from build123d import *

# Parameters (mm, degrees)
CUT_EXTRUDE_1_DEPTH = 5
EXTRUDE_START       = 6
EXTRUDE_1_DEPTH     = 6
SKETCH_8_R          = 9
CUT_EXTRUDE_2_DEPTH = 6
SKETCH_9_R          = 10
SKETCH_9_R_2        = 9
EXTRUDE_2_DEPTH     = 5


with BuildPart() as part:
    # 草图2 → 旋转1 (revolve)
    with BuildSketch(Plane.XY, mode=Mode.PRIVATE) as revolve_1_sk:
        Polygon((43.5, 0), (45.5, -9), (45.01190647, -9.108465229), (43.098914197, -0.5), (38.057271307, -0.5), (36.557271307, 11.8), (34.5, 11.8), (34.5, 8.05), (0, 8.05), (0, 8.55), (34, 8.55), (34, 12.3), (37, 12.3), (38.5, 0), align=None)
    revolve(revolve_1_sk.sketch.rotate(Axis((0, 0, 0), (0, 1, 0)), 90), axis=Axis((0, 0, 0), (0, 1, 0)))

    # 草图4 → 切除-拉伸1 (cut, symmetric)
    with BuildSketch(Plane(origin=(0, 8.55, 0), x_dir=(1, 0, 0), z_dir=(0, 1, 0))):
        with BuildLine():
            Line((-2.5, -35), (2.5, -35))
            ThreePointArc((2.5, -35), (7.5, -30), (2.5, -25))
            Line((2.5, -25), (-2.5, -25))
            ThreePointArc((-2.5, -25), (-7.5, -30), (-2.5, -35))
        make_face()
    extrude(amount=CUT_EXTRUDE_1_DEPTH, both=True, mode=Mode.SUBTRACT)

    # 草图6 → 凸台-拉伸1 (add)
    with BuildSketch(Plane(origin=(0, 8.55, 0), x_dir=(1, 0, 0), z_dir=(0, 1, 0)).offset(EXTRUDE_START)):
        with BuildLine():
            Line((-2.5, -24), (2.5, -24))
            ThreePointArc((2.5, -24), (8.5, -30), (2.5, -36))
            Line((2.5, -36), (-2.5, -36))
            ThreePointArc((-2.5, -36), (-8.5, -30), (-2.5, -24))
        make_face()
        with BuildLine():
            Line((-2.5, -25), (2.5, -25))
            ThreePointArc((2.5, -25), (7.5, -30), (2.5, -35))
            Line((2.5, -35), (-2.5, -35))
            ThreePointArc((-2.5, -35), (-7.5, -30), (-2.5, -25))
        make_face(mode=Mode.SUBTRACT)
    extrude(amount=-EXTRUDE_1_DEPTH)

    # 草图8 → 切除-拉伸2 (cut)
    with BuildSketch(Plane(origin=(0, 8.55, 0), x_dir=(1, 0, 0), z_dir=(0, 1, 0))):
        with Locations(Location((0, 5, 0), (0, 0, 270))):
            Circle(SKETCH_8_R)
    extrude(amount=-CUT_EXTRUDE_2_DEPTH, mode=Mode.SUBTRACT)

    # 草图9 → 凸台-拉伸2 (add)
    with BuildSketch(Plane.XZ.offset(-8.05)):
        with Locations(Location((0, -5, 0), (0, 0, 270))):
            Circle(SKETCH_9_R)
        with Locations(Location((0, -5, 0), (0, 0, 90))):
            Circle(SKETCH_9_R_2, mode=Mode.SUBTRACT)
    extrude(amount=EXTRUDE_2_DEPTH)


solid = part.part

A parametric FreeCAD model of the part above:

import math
import FreeCAD as App
import Part
import Sketcher

V = App.Vector

doc = App.newDocument("Part")
body = doc.addObject("PartDesign::Body", "Body")

sketch1 = body.newObject("Sketcher::SketchObject", "Sketch")
sketch1.AttachmentSupport = (doc.getObject("XY_Plane"), [""])
sketch1.MapMode = "FlatFace"
sketch1.addGeometry([
    Part.LineSegment(V(45.5, -9, 0), V(43.5, 0, 0)),
    Part.LineSegment(V(43.5, 0, 0), V(38.5, 0, 0)),
    Part.LineSegment(V(38.5, 0, 0), V(37, 12.3, 0)),
    Part.LineSegment(V(37, 12.3, 0), V(34, 12.3, 0)),
    Part.LineSegment(V(34, 12.3, 0), V(34, 8.55, 0)),
    Part.LineSegment(V(34, 8.55, 0), V(0, 8.55, 0)),
    Part.LineSegment(V(0, 8.55, 0), V(0, 8.05, 0)),
    Part.LineSegment(V(0, 8.05, 0), V(34.5, 8.05, 0)),
    Part.LineSegment(V(34.5, 8.05, 0), V(34.5, 11.8, 0)),
    Part.LineSegment(V(34.5, 11.8, 0), V(36.56, 11.8, 0)),
    Part.LineSegment(V(36.56, 11.8, 0), V(38.06, -0.5, 0)),
    Part.LineSegment(V(38.06, -0.5, 0), V(43.1, -0.5, 0)),
    Part.LineSegment(V(43.1, -0.5, 0), V(45.01, -9.11, 0)),
    Part.LineSegment(V(45.01, -9.11, 0), V(45.5, -9, 0)),
], False)
sketch1.addConstraint([
    Sketcher.Constraint("Coincident", 0, 2, 1, 1),
    Sketcher.Constraint("Coincident", 1, 2, 2, 1),
    Sketcher.Constraint("Coincident", 2, 2, 3, 1),
    Sketcher.Constraint("Coincident", 3, 2, 4, 1),
    Sketcher.Constraint("Coincident", 4, 2, 5, 1),
    Sketcher.Constraint("Coincident", 5, 2, 6, 1),
    Sketcher.Constraint("Coincident", 6, 2, 7, 1),
    Sketcher.Constraint("Coincident", 7, 2, 8, 1),
    Sketcher.Constraint("Coincident", 8, 2, 9, 1),
    Sketcher.Constraint("Coincident", 9, 2, 10, 1),
    Sketcher.Constraint("Coincident", 10, 2, 11, 1),
    Sketcher.Constraint("Coincident", 11, 2, 12, 1),
    Sketcher.Constraint("Coincident", 12, 2, 13, 1),
    Sketcher.Constraint("Coincident", 13, 2, 0, 1),
    Sketcher.Constraint("Horizontal", 1),
    Sketcher.Constraint("Horizontal", 3),
    Sketcher.Constraint("Vertical", 4),
    Sketcher.Constraint("Horizontal", 5),
    Sketcher.Constraint("Vertical", 6),
    Sketcher.Constraint("Horizontal", 7),
    Sketcher.Constraint("Vertical", 8),
    Sketcher.Constraint("Horizontal", 9),
    Sketcher.Constraint("Horizontal", 11),
    Sketcher.Constraint("PointOnObject", 0, 2, -1),
    Sketcher.Constraint("PointOnObject", 5, 2, -2),
    Sketcher.Constraint("Parallel", 2, 10),
    Sketcher.Constraint("Parallel", 0, 12),
    Sketcher.Constraint("Perpendicular", 12, 13),
    Sketcher.Constraint("Equal", 4, 8),
    Sketcher.Constraint("Equal", 2, 10),
    Sketcher.Constraint("DistanceX", 1, 2, 1, 1, 5.0),
    Sketcher.Constraint("DistanceX", 3, 2, 3, 1, 3.0),
    Sketcher.Constraint("DistanceX", 5, 2, 5, 1, 34.0),
    Sketcher.Constraint("DistanceX", 7, 1, 7, 2, 34.5),
    Sketcher.Constraint("DistanceY", 6, 2, 6, 1, 0.5),
    Sketcher.Constraint("DistanceY", 13, 2, -1, 1, 9.0),
    Sketcher.Constraint("DistanceX", 7, 2, 1, 2, 4.0),
    Sketcher.Constraint("DistanceX", 0, 2, 13, 2, 2.0),
    Sketcher.Constraint("Distance", 13, 0.5),
    Sketcher.Constraint("DistanceY", 4, 2, 4, 1, 3.75),
    Sketcher.Constraint("DistanceY", -1, 1, 2, 2, 12.3),
    Sketcher.Constraint("DistanceX", 9, 1, 9, 2, 2.057271),
])
revolution = body.newObject("PartDesign::Revolution", "Revolution")
revolution.Profile = sketch1
revolution.ReferenceAxis = (sketch1, ["V_Axis"])
revolution.Angle = 360

sketch2 = body.newObject("Sketcher::SketchObject", "Sketch001")
sketch2.AttachmentSupport = (doc.getObject("XZ_Plane"), [""])
sketch2.MapMode = "FlatFace"
sketch2.AttachmentOffset = App.Placement(V(0, 0, -8.55), App.Rotation())
sketch2.addGeometry([
    Part.LineSegment(V(-2, 35, 0), V(2, 35, 0)),
    Part.ArcOfCircle(Part.Circle(V(2, 30, 0), V(0, 0, 1), 5), math.radians(-90), math.radians(90)),
    Part.LineSegment(V(2, 25, 0), V(-2, 25, 0)),
    Part.ArcOfCircle(Part.Circle(V(-2, 30, 0), V(0, 0, 1), 5), math.radians(90), math.radians(270)),
], False)
sketch2.addConstraint([
    Sketcher.Constraint("Tangent", 0, 2, 1, 2),
    Sketcher.Constraint("Tangent", 1, 1, 2, 1),
    Sketcher.Constraint("Tangent", 2, 2, 3, 2),
    Sketcher.Constraint("Tangent", 3, 1, 0, 1),
    Sketcher.Constraint("Horizontal", 0),
    Sketcher.Constraint("Horizontal", 2),
    Sketcher.Constraint("Radius", 1, 5.0),
    Sketcher.Constraint("DistanceX", 0, 1, 0, 2, 5.0),
    Sketcher.Constraint("DistanceY", -1, 1, 1, 3, 30.0),
    Sketcher.Constraint("DistanceX", -1, 1, 1, 3, 2.5),
])
pocket1 = body.newObject("PartDesign::Pocket", "Pocket")
pocket1.Profile = sketch2
pocket1.Length = 10
pocket1.Midplane = True

sketch3 = body.newObject("Sketcher::SketchObject", "Sketch002")
sketch3.AttachmentSupport = (doc.getObject("XZ_Plane"), [""])
sketch3.MapMode = "FlatFace"
sketch3.AttachmentOffset = App.Placement(V(0, 0, -14.55), App.Rotation())
sketch3.addGeometry([
    Part.LineSegment(V(2, 24, 0), V(-2, 24, 0)),
    Part.ArcOfCircle(Part.Circle(V(-2, 30, 0), V(0, 0, 1), 6), math.radians(90), math.radians(270)),
    Part.LineSegment(V(-2, 36, 0), V(2, 36, 0)),
    Part.ArcOfCircle(Part.Circle(V(2, 30, 0), V(0, 0, 1), 6), math.radians(-90), math.radians(90)),
    Part.LineSegment(V(-2, 25, 0), V(2, 25, 0)),
    Part.ArcOfCircle(Part.Circle(V(2, 30, 0), V(0, 0, 1), 5), math.radians(-90), math.radians(90)),
    Part.LineSegment(V(2, 35, 0), V(-2, 35, 0)),
    Part.ArcOfCircle(Part.Circle(V(-2, 30, 0), V(0, 0, 1), 5), math.radians(90), math.radians(270)),
], False)
sketch3.addConstraint([
    Sketcher.Constraint("Tangent", 0, 2, 1, 2),
    Sketcher.Constraint("Tangent", 1, 1, 2, 1),
    Sketcher.Constraint("Tangent", 2, 2, 3, 2),
    Sketcher.Constraint("Tangent", 3, 1, 0, 1),
    Sketcher.Constraint("Tangent", 4, 2, 5, 1),
    Sketcher.Constraint("Tangent", 5, 2, 6, 1),
    Sketcher.Constraint("Tangent", 6, 2, 7, 1),
    Sketcher.Constraint("Tangent", 7, 2, 4, 1),
    Sketcher.Constraint("Horizontal", 0),
    Sketcher.Constraint("Horizontal", 2),
    Sketcher.Constraint("Horizontal", 4),
    Sketcher.Constraint("Horizontal", 6),
    Sketcher.Constraint("Coincident", 5, 3, 3, 3),
    Sketcher.Constraint("Vertical", 7, 3, 0, 2),
    Sketcher.Constraint("Radius", 1, 6.0),
    Sketcher.Constraint("Radius", 5, 5.0),
    Sketcher.Constraint("DistanceX", 0, 2, 0, 1, 5.0),
    Sketcher.Constraint("DistanceY", -1, 1, 1, 3, 30.0),
    Sketcher.Constraint("DistanceX", 1, 3, -1, 1, 2.5),
])
pad1 = body.newObject("PartDesign::Pad", "Pad")
pad1.Profile = sketch3
pad1.Length = 6

sketch4 = body.newObject("Sketcher::SketchObject", "Sketch003")
sketch4.AttachmentSupport = (doc.getObject("XZ_Plane"), [""])
sketch4.MapMode = "FlatFace"
sketch4.AttachmentOffset = App.Placement(V(0, 0, -8.55), App.Rotation())
sketch4.addGeometry(Part.Circle(V(0, -5, 0), V(0, 0, 1), 9), False)
sketch4.addConstraint([
    Sketcher.Constraint("PointOnObject", 0, 3, -2),
    Sketcher.Constraint("Diameter", 0, 18.0),
    Sketcher.Constraint("DistanceY", 0, 3, -1, 1, 5.0),
])
pocket2 = body.newObject("PartDesign::Pocket", "Pocket001")
pocket2.Profile = sketch4
pocket2.Length = 6
pocket2.Reversed = True

sketch5 = body.newObject("Sketcher::SketchObject", "Sketch004")
sketch5.AttachmentSupport = (doc.getObject("XZ_Plane"), [""])
sketch5.MapMode = "FlatFace"
sketch5.AttachmentOffset = App.Placement(V(0, 0, -8.05), App.Rotation())
sketch5.addGeometry([
    Part.Circle(V(0, -5, 0), V(0, 0, 1), 10),
    Part.Circle(V(0, -5, 0), V(0, 0, 1), 9),
], False)
sketch5.addConstraint([
    Sketcher.Constraint("Coincident", 1, 3, 0, 3),
    Sketcher.Constraint("PointOnObject", 0, 3, -2),
    Sketcher.Constraint("Diameter", 0, 20.0),
    Sketcher.Constraint("Diameter", 1, 18.0),
    Sketcher.Constraint("DistanceY", 0, 3, -1, 1, 5.0),
])
pad2 = body.newObject("PartDesign::Pad", "Pad001")
pad2.Profile = sketch5
pad2.Length = 5

doc.recompute()
